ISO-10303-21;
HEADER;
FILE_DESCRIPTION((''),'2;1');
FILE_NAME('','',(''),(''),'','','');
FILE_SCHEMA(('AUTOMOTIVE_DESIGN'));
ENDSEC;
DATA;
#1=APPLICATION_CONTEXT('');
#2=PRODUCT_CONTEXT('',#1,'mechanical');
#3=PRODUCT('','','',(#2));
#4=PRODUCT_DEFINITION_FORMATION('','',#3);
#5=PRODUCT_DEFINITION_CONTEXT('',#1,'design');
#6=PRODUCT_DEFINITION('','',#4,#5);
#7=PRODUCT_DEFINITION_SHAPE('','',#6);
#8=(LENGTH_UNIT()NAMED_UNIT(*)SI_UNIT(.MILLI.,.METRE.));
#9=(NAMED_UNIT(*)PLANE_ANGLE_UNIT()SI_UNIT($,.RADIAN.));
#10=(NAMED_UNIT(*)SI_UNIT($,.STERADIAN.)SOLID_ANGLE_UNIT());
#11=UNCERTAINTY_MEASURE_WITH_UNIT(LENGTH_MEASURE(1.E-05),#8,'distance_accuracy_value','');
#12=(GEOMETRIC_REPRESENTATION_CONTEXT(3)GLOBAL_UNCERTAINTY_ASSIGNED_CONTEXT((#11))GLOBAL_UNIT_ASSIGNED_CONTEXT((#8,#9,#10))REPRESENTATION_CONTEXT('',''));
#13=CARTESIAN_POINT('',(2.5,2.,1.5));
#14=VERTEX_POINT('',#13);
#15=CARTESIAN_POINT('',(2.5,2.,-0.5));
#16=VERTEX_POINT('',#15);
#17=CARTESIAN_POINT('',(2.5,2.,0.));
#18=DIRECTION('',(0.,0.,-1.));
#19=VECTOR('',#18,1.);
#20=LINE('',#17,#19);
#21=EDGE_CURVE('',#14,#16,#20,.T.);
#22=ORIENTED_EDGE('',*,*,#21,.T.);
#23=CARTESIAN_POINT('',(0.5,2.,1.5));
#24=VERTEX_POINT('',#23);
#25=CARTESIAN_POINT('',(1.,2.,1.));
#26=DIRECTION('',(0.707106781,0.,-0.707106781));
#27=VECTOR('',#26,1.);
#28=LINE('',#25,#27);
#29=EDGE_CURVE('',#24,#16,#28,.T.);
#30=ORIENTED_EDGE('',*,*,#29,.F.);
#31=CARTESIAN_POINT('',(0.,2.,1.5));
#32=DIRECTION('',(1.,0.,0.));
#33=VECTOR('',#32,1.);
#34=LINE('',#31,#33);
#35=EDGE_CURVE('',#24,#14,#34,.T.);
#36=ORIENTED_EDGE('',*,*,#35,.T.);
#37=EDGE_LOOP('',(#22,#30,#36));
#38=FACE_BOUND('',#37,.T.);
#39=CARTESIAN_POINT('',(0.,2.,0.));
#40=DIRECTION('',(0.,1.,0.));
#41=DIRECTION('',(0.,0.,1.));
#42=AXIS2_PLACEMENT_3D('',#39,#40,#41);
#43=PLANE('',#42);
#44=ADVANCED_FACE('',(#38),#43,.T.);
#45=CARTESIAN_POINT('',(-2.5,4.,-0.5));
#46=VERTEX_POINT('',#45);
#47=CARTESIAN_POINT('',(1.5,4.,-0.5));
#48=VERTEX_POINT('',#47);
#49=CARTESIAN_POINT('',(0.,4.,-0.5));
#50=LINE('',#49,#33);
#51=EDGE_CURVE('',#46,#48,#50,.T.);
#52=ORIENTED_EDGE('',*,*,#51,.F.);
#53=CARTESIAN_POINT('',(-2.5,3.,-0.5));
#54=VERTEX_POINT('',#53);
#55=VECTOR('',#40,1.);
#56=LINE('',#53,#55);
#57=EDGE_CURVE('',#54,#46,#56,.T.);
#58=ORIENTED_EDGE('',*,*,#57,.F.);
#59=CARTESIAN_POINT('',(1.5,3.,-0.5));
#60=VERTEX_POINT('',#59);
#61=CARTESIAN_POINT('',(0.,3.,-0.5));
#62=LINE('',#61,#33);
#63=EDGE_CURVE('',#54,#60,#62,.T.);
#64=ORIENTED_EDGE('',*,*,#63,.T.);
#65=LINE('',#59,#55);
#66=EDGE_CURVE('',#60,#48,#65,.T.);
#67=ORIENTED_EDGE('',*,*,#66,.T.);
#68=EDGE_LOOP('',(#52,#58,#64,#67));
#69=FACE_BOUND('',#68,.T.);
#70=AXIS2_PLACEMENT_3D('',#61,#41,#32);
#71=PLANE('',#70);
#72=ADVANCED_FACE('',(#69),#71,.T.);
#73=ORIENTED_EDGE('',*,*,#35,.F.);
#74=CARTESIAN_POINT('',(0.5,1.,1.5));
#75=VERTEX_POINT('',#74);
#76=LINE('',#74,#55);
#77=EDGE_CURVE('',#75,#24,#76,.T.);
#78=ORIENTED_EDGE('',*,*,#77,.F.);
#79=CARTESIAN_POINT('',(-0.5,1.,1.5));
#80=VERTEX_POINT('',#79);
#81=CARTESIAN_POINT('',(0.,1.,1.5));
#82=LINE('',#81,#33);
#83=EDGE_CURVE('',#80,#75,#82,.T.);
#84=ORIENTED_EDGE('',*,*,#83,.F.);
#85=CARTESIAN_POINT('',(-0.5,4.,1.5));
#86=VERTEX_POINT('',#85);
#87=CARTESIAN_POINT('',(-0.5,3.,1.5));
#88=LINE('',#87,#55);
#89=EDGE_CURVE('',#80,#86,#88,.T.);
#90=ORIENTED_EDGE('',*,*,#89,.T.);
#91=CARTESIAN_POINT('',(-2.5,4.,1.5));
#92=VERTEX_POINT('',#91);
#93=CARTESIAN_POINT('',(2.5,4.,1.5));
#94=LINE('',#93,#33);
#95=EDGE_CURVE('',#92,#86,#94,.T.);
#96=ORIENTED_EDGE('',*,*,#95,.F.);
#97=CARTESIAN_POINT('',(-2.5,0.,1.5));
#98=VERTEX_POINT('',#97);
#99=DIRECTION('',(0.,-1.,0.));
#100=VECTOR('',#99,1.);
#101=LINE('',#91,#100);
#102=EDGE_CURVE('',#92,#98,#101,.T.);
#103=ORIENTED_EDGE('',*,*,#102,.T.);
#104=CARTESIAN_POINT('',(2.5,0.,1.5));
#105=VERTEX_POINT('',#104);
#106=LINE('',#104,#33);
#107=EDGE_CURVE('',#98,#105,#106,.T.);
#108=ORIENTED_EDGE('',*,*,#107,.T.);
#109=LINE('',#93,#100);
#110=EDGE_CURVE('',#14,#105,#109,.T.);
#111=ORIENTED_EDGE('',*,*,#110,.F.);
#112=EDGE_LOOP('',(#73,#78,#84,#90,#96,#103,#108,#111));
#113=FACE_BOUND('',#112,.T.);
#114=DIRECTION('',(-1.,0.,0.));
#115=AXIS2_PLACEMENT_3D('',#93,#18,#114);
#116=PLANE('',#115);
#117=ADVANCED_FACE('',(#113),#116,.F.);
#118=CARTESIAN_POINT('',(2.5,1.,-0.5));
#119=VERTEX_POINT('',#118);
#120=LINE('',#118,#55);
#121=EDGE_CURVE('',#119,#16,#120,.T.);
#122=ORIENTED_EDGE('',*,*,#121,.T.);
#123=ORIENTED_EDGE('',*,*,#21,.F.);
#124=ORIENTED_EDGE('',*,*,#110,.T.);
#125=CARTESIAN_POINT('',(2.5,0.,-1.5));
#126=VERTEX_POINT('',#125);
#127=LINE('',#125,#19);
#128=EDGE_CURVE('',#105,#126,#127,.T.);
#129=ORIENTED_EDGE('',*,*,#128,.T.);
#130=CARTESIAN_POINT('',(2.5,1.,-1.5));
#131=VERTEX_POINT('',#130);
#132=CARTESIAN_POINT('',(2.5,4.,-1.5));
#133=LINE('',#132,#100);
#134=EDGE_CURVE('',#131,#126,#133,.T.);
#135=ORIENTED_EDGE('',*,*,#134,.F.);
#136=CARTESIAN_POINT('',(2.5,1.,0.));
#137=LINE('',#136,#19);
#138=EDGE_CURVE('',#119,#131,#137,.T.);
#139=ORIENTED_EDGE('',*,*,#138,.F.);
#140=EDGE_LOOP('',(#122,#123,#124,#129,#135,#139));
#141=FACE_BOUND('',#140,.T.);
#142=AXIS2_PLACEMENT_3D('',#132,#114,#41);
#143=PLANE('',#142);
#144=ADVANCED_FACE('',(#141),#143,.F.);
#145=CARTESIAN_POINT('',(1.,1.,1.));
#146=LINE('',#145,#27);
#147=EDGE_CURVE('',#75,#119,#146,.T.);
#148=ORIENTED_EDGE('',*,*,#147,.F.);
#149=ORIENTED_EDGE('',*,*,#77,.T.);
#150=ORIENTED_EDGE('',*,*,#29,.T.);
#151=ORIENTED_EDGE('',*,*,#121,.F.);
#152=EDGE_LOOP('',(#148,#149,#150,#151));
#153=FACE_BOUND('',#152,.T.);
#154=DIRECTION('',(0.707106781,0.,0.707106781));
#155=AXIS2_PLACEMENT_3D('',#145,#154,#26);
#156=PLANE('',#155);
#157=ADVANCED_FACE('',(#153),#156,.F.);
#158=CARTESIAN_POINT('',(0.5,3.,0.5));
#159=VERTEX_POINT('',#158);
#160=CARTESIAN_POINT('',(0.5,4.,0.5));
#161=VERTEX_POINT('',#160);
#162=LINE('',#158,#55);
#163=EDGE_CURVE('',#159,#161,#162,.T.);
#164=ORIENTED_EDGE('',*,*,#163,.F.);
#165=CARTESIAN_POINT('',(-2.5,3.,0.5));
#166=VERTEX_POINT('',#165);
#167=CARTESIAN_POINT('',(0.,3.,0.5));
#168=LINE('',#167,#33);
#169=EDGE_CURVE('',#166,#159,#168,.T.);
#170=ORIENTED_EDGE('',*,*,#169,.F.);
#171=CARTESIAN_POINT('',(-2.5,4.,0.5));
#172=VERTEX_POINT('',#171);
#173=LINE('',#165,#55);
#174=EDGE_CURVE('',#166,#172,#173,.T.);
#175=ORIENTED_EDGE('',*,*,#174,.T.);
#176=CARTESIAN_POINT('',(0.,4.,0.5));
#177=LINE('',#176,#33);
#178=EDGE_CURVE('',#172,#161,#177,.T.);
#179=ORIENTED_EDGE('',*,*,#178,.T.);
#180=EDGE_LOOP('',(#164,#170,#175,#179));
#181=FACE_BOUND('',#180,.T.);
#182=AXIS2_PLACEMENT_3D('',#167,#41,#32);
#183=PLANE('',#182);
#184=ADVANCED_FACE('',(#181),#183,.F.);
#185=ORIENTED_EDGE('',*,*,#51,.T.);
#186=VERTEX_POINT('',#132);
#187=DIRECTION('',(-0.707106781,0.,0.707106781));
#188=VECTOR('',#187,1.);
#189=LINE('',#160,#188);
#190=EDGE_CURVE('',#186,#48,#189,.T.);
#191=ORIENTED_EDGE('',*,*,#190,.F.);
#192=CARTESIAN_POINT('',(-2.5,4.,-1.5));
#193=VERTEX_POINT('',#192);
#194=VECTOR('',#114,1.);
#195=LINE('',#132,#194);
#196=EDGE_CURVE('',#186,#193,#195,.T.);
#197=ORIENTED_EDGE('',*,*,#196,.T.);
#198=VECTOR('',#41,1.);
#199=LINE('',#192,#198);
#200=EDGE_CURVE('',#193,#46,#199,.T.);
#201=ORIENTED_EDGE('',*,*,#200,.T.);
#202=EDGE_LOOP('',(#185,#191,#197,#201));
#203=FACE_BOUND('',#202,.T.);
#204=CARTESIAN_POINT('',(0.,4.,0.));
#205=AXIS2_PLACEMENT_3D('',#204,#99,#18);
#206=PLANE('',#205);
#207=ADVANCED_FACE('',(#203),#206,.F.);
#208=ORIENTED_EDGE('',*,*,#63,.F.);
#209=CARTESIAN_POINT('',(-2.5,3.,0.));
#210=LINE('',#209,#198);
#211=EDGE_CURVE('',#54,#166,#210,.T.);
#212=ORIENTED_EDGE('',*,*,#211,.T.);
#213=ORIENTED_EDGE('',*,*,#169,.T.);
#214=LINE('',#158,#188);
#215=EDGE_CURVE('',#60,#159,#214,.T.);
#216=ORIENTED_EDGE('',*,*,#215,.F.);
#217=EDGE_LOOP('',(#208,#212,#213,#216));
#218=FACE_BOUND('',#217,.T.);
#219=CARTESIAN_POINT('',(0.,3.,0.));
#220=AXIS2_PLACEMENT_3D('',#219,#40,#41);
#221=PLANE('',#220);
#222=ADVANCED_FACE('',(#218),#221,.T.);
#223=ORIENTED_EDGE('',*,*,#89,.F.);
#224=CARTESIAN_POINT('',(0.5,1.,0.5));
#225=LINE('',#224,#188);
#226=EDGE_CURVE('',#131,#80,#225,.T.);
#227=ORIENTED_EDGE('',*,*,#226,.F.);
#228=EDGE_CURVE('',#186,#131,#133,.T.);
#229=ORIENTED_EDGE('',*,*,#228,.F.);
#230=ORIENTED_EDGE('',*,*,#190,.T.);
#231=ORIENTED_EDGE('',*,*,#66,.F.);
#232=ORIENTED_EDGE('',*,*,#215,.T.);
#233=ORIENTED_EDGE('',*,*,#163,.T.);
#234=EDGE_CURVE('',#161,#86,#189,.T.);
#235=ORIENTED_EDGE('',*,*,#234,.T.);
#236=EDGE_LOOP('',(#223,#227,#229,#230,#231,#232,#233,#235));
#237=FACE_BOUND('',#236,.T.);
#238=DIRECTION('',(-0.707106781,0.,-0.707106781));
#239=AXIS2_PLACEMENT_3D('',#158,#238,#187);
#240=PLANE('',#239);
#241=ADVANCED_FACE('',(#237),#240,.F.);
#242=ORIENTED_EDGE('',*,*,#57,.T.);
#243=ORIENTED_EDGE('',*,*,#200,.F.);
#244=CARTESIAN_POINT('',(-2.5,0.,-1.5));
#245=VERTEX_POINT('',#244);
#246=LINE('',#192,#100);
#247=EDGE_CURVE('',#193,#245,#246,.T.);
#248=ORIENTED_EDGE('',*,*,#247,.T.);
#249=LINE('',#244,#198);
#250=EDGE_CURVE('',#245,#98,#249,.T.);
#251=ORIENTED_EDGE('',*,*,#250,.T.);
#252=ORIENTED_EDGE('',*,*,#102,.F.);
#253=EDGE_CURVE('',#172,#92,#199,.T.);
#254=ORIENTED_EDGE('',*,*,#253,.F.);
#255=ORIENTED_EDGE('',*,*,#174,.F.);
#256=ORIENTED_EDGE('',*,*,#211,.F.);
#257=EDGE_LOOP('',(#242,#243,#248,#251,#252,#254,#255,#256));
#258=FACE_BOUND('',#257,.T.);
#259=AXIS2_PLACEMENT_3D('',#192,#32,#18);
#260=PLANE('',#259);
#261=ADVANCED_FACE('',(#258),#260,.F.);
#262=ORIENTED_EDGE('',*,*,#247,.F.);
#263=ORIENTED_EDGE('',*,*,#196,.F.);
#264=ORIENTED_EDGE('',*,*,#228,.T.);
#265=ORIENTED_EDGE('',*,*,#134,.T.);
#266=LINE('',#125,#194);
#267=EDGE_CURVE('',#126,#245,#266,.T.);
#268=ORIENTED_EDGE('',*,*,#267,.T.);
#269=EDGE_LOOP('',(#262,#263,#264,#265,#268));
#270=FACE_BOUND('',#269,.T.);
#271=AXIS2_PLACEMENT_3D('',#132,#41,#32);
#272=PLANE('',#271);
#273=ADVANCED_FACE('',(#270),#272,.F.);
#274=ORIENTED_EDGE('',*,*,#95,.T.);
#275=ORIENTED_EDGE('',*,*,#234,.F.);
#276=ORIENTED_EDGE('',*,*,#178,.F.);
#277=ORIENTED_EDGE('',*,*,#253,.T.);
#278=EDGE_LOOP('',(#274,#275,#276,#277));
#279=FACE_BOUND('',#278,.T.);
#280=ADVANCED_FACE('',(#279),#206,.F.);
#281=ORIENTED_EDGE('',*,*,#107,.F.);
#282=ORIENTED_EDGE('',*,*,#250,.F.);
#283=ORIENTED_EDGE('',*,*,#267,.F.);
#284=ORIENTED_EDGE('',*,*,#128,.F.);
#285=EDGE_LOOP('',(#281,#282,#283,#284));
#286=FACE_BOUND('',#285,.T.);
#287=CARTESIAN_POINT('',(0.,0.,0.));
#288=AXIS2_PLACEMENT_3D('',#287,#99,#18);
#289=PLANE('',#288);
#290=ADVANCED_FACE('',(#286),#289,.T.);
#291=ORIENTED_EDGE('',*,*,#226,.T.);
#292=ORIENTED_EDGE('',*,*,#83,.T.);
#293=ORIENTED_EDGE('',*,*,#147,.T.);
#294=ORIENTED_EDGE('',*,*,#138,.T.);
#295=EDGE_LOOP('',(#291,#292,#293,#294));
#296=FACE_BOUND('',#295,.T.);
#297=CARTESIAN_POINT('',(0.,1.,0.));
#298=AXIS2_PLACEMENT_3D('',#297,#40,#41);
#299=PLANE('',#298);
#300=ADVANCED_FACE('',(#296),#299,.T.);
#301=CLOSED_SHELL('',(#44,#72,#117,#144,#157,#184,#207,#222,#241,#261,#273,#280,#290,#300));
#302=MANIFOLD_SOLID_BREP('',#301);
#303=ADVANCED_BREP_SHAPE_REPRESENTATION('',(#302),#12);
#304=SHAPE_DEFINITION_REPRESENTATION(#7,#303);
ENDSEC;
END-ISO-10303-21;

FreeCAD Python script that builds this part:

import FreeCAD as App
import Part
import Sketcher

V = App.Vector
Q = App.Units.Quantity

doc = App.newDocument("Part")
params = doc.addObject("Spreadsheet::Sheet", "Params")
for row, (alias, value) in enumerate([
    ("sketch1_width", "5 mm"),
    ("sketch1_height", "3 mm"),
    ("pad1_length", "4 mm"),
    ("sketch2_width", "3 mm"),
    ("sketch2_width2", "4 mm"),
    ("sketch2_height", "1 mm"),
    ("pocket1_length", "1 mm"),
    ("sketch3_width", "1 mm"),
    ("pocket2_length", "3 mm"),
    ("sketch4_width", "2 mm"),
    ("pocket3_length", "2 mm"),
], start=1):
    params.set(f"A{row}", alias)
    params.set(f"B{row}", "=" + value)
    params.setAlias(f"B{row}", alias)

body = doc.addObject("PartDesign::Body", "Body")

# Sketch on XZ plane
sketch1 = doc.addObject("Sketcher::SketchObject", "Sketch")
body.addObject(sketch1)
sketch1.AttachmentSupport = (doc.XZ_Plane, [""])
sketch1.MapMode = "FlatFace"
sketch1.addGeometry([
    Part.LineSegment(V(-2.5, -1.5, 0), V(-2.5, 1.5, 0)),
    Part.LineSegment(V(-2.5, 1.5, 0), V(2.5, 1.5, 0)),
    Part.LineSegment(V(2.5, 1.5, 0), V(2.5, -1.5, 0)),
    Part.LineSegment(V(2.5, -1.5, 0), V(-2.5, -1.5, 0)),
], False)
sketch1.addConstraint([
    Sketcher.Constraint("Coincident", 0, 2, 1, 1),
    Sketcher.Constraint("Coincident", 1, 2, 2, 1),
    Sketcher.Constraint("Coincident", 2, 2, 3, 1),
    Sketcher.Constraint("Coincident", 3, 2, 0, 1),
    Sketcher.Constraint("Vertical", 0),
    Sketcher.Constraint("Horizontal", 1),
    Sketcher.Constraint("Vertical", 2),
    Sketcher.Constraint("Horizontal", 3),
    Sketcher.Constraint("Symmetric", 0, 2, 2, 2, -1, 1),
    Sketcher.Constraint("DistanceX", 1, 1, 1, 2, Q("5 mm")),
    Sketcher.Constraint("DistanceY", 0, 1, 0, 2, Q("3 mm")),
])
sketch1.setExpression("Constraints[9]", "Params.sketch1_width")
sketch1.setExpression("Constraints[10]", "Params.sketch1_height")
pad1 = doc.addObject("PartDesign::Pad", "Pad")
body.addObject(pad1)
pad1.Profile = sketch1
pad1.setExpression("Length", "Params.pad1_length")
pad1.Reversed = True

# Sketch on XZ plane
sketch2 = doc.addObject("Sketcher::SketchObject", "Sketch001")
body.addObject(sketch2)
sketch2.AttachmentSupport = (doc.XZ_Plane, [""])
sketch2.MapMode = "FlatFace"
sketch2.AttachmentOffset = App.Placement(V(0, 0, -4), App.Rotation())
sketch2.addGeometry([
    Part.LineSegment(V(-2.5, -0.5, 0), V(-2.5, 0.5, 0)),  # 0
    Part.LineSegment(V(-2.5, 0.5, 0), V(0.5, 0.5, 0)),  # 1
    Part.LineSegment(V(0.5, 0.5, 0), V(-0.5, 1.5, 0)),  # 2
    Part.LineSegment(V(-0.5, 1.5, 0), V(2.5, 1.5, 0)),  # 3
    Part.LineSegment(V(2.5, 1.5, 0), V(2.5, -1.5, 0)),  # 4
    Part.LineSegment(V(2.5, -1.5, 0), V(1.5, -0.5, 0)),  # 5
    Part.LineSegment(V(1.5, -0.5, 0), V(-2.5, -0.5, 0)),  # 6
], False)
sketch2.addConstraint([
    Sketcher.Constraint("Coincident", 0, 2, 1, 1),
    Sketcher.Constraint("Coincident", 1, 2, 2, 1),
    Sketcher.Constraint("Coincident", 2, 2, 3, 1),
    Sketcher.Constraint("Coincident", 3, 2, 4, 1),
    Sketcher.Constraint("Coincident", 4, 2, 5, 1),
    Sketcher.Constraint("Coincident", 5, 2, 6, 1),
    Sketcher.Constraint("Coincident", 6, 2, 0, 1),
    Sketcher.Constraint("Vertical", 0),
    Sketcher.Constraint("Horizontal", 1),
    Sketcher.Constraint("Horizontal", 3),
    Sketcher.Constraint("Vertical", 4),
    Sketcher.Constraint("Horizontal", 6),
    Sketcher.Constraint("Parallel", 2, 5),
    Sketcher.Constraint("Equal", 1, 3),
    Sketcher.Constraint("Equal", 3, 4),
    Sketcher.Constraint("Equal", 2, 5),
    Sketcher.Constraint("DistanceX", 1, 1, 1, 2, Q("3 mm")),
    Sketcher.Constraint("DistanceX", 6, 2, 6, 1, Q("4 mm")),
    Sketcher.Constraint("DistanceY", 0, 1, 0, 2, Q("1 mm")),
    Sketcher.Constraint("DistanceX", 0, 2, -1, 1, Q("2.5 mm")),
    Sketcher.Constraint("DistanceY", -1, 1, 0, 2, Q("0.5 mm")),
])
sketch2.setExpression("Constraints[16]", "Params.sketch2_width")
sketch2.setExpression("Constraints[17]", "Params.sketch2_width2")
sketch2.setExpression("Constraints[18]", "Params.sketch2_height")
pocket1 = doc.addObject("PartDesign::Pocket", "Pocket")
body.addObject(pocket1)
pocket1.Profile = sketch2
pocket1.setExpression("Length", "Params.pocket1_length")
pocket1.Reversed = True

# Sketch on XZ plane
sketch3 = doc.addObject("Sketcher::SketchObject", "Sketch002")
body.addObject(sketch3)
sketch3.AttachmentSupport = (doc.XZ_Plane, [""])
sketch3.MapMode = "FlatFace"
sketch3.AttachmentOffset = App.Placement(V(0, 0, -4), App.Rotation())
sketch3.addGeometry([
    Part.LineSegment(V(-0.5, 1.5, 0), V(0.5, 1.5, 0)),
    Part.LineSegment(V(0.5, 1.5, 0), V(2.5, -0.5, 0)),
    Part.LineSegment(V(2.5, -0.5, 0), V(2.5, -1.5, 0)),
    Part.LineSegment(V(2.5, -1.5, 0), V(-0.5, 1.5, 0)),
], False)
sketch3.addConstraint([
    Sketcher.Constraint("Coincident", 0, 2, 1, 1),
    Sketcher.Constraint("Coincident", 1, 2, 2, 1),
    Sketcher.Constraint("Coincident", 2, 2, 3, 1),
    Sketcher.Constraint("Coincident", 3, 2, 0, 1),
    Sketcher.Constraint("Horizontal", 0),
    Sketcher.Constraint("Vertical", 2),
    Sketcher.Constraint("Parallel", 1, 3),
    Sketcher.Constraint("Equal", 0, 2),
    Sketcher.Constraint("DistanceX", 0, 1, 0, 2, Q("1 mm")),
    Sketcher.Constraint("DistanceX", 0, 2, 1, 2, Q("2 mm")),
    Sketcher.Constraint("DistanceX", -1, 1, 0, 2, Q("0.5 mm")),
    Sketcher.Constraint("DistanceY", -1, 1, 0, 2, Q("1.5 mm")),
])
sketch3.setExpression("Constraints[8]", "Params.sketch3_width")
pocket2 = doc.addObject("PartDesign::Pocket", "Pocket001")
body.addObject(pocket2)
pocket2.Profile = sketch3
pocket2.setExpression("Length", "Params.pocket2_length")
pocket2.Reversed = True

# Sketch on XZ plane
sketch4 = doc.addObject("Sketcher::SketchObject", "Sketch003")
body.addObject(sketch4)
sketch4.AttachmentSupport = (doc.XZ_Plane, [""])
sketch4.MapMode = "FlatFace"
sketch4.AttachmentOffset = App.Placement(V(0, 0, -4), App.Rotation())
sketch4.addGeometry([
    Part.LineSegment(V(2.5, -0.5, 0), V(0.5, 1.5, 0)),
    Part.LineSegment(V(0.5, 1.5, 0), V(2.5, 1.5, 0)),
    Part.LineSegment(V(2.5, 1.5, 0), V(2.5, -0.5, 0)),
], False)
sketch4.addConstraint([
    Sketcher.Constraint("Coincident", 0, 2, 1, 1),
    Sketcher.Constraint("Coincident", 1, 2, 2, 1),
    Sketcher.Constraint("Coincident", 2, 2, 0, 1),
    Sketcher.Constraint("Horizontal", 1),
    Sketcher.Constraint("Vertical", 2),
    Sketcher.Constraint("Equal", 1, 2),
    Sketcher.Constraint("DistanceX", 1, 1, 1, 2, Q("2 mm")),
    Sketcher.Constraint("DistanceX", -1, 1, 0, 2, Q("0.5 mm")),
    Sketcher.Constraint("DistanceY", -1, 1, 0, 2, Q("1.5 mm")),
])
sketch4.setExpression("Constraints[6]", "Params.sketch4_width")
pocket3 = doc.addObject("PartDesign::Pocket", "Pocket002")
body.addObject(pocket3)
pocket3.Profile = sketch4
pocket3.setExpression("Length", "Params.pocket3_length")
pocket3.Reversed = True

doc.recompute()
